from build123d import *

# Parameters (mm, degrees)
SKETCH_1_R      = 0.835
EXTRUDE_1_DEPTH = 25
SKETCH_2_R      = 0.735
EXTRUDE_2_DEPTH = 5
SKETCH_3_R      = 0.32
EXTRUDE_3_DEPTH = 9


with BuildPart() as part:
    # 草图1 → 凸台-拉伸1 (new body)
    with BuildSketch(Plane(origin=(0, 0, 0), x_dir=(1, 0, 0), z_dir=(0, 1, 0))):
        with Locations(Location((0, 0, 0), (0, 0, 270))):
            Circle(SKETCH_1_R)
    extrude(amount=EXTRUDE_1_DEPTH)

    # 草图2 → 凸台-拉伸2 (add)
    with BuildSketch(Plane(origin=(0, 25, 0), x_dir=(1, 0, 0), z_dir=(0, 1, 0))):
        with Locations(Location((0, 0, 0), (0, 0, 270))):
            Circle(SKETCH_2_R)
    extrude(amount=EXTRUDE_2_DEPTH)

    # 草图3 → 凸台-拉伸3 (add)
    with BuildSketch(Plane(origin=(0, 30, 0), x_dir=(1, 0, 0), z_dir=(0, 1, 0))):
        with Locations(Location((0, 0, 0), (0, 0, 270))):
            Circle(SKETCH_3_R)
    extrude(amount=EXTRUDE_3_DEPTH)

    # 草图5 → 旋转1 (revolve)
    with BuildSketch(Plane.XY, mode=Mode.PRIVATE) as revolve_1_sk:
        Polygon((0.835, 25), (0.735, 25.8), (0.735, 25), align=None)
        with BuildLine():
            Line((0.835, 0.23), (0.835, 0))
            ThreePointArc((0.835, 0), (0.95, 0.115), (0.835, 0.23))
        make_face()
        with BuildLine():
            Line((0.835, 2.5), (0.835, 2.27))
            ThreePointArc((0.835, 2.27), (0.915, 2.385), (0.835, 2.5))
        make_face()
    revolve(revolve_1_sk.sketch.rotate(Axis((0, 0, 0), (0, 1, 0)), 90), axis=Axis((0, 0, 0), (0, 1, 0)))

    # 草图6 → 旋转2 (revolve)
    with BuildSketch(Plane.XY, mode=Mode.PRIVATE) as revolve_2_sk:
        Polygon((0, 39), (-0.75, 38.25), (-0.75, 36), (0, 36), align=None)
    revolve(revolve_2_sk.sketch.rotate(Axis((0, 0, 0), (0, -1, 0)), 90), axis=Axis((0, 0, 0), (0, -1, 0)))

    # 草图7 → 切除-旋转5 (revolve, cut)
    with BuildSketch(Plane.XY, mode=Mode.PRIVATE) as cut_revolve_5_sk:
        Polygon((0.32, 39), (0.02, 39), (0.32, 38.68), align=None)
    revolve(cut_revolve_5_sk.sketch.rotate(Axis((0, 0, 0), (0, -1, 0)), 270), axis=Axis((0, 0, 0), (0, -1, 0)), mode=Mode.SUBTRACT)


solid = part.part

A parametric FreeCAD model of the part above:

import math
import FreeCAD as App
import Part
import Sketcher
Q = App.Units.Quantity


def add_polygon(sketch, points):
    """Adds a closed chain of lines whose ends are joined by coincident constraints."""
    first, n = sketch.GeometryCount, len(points)
    for a, b in zip(points, points[1:] + points[:1]):
        sketch.addGeometry(Part.LineSegment(App.Vector(*a, 0), App.Vector(*b, 0)), False)
    for i in range(n):
        sketch.addConstraint(Sketcher.Constraint("Coincident", first + i, 2, first + (i + 1) % n, 1))

doc = App.newDocument("Part")
body = doc.addObject("PartDesign::Body", "Body")

sketch1 = doc.addObject("Sketcher::SketchObject", "Sketch")
body.addObject(sketch1)
sketch1.AttachmentSupport = (doc.XZ_Plane, [""])
sketch1.MapMode = "FlatFace"
sketch1.addGeometry(Part.Circle(App.Vector(0, 0, 0), App.Vector(0, 0, 1), 0.8), False)
sketch1.addConstraint(Sketcher.Constraint("Coincident", 0, 3, -1, 1))
sketch1.addConstraint(Sketcher.Constraint("Diameter", 0, Q("1.67 mm")))
pad1 = doc.addObject("PartDesign::Pad", "Pad")
body.addObject(pad1)
pad1.Profile = sketch1
pad1.Length = 25
pad1.Reversed = True

sketch2 = doc.addObject("Sketcher::SketchObject", "Sketch001")
body.addObject(sketch2)
sketch2.AttachmentSupport = (doc.XZ_Plane, [""])
sketch2.MapMode = "FlatFace"
sketch2.AttachmentOffset = App.Placement(App.Vector(0, 0, -25), App.Rotation())
sketch2.addGeometry(Part.Circle(App.Vector(0, 0, 0), App.Vector(0, 0, 1), 0.7), False)
sketch2.addConstraint(Sketcher.Constraint("Coincident", 0, 3, -1, 1))
sketch2.addConstraint(Sketcher.Constraint("Diameter", 0, Q("1.47 mm")))
pad2 = doc.addObject("PartDesign::Pad", "Pad001")
body.addObject(pad2)
pad2.Profile = sketch2
pad2.Length = 5
pad2.Reversed = True

sketch3 = doc.addObject("Sketcher::SketchObject", "Sketch002")
body.addObject(sketch3)
sketch3.AttachmentSupport = (doc.XZ_Plane, [""])
sketch3.MapMode = "FlatFace"
sketch3.AttachmentOffset = App.Placement(App.Vector(0, 0, -30), App.Rotation())
sketch3.addGeometry(Part.Circle(App.Vector(0, 0, 0), App.Vector(0, 0, 1), 0.32), False)
sketch3.addConstraint(Sketcher.Constraint("Coincident", 0, 3, -1, 1))
sketch3.addConstraint(Sketcher.Constraint("Diameter", 0, Q("0.64 mm")))
pad3 = doc.addObject("PartDesign::Pad", "Pad002")
body.addObject(pad3)
pad3.Profile = sketch3
pad3.Length = 9
pad3.Reversed = True

sketch4 = doc.addObject("Sketcher::SketchObject", "Sketch003")
body.addObject(sketch4)
sketch4.AttachmentSupport = (doc.XY_Plane, [""])
sketch4.MapMode = "FlatFace"
add_polygon(sketch4, [(0.83, 25), (0.73, 25.8), (0.73, 25)])
sketch4.addGeometry(Part.LineSegment(App.Vector(0.83, 0.23, 0), App.Vector(0.83, 0, 0)), False)
sketch4.addGeometry(Part.ArcOfCircle(Part.Circle(App.Vector(0.83, 0.12, 0), App.Vector(0, 0, 1), 0.12), math.radians(-90), math.radians(90)), False)
sketch4.addGeometry(Part.LineSegment(App.Vector(0.83, 2.5, 0), App.Vector(0.83, 2.27, 0)), False)
sketch4.addGeometry(Part.ArcOfCircle(Part.Circle(App.Vector(0.79, 2.38, 0), App.Vector(0, 0, 1), 0.12), math.radians(-70), math.radians(70)), False)
sketch4.addConstraint(Sketcher.Constraint("Coincident", 3, 1, 4, 2))
sketch4.addConstraint(Sketcher.Constraint("Coincident", 4, 1, 3, 2))
sketch4.addConstraint(Sketcher.Constraint("Coincident", 5, 1, 6, 2))
sketch4.addConstraint(Sketcher.Constraint("Coincident", 6, 1, 5, 2))
sketch4.addConstraint(Sketcher.Constraint("Vertical", 1))
sketch4.addConstraint(Sketcher.Constraint("Horizontal", 2))
sketch4.addConstraint(Sketcher.Constraint("Vertical", 3))
sketch4.addConstraint(Sketcher.Constraint("Vertical", 5))
sketch4.addConstraint(Sketcher.Constraint("PointOnObject", 4, 1, -1))
sketch4.addConstraint(Sketcher.Constraint("Vertical", 4, 3, 2, 2))
sketch4.addConstraint(Sketcher.Constraint("Vertical", 2, 2, 3, 1))
sketch4.addConstraint(Sketcher.Constraint("Vertical", 4, 1, 5, 1))
sketch4.addConstraint(Sketcher.Constraint("Equal", 3, 5))
sketch4.addConstraint(Sketcher.Constraint("DistanceX", 2, 1, 2, 2, Q("0.1 mm")))
sketch4.addConstraint(Sketcher.Constraint("DistanceY", 1, 2, 1, 1, Q("0.8 mm")))
sketch4.addConstraint(Sketcher.Constraint("DistanceY", -1, 1, 1, 2, Q("25 mm")))
sketch4.addConstraint(Sketcher.Constraint("Radius", 4, Q("0.115 mm")))
sketch4.addConstraint(Sketcher.Constraint("DistanceY", -1, 1, 5, 1, Q("2.5 mm")))
sketch4.addConstraint(Sketcher.Constraint("DistanceX", -1, 1, 4, 3, Q("0.835 mm")))
sketch4.addConstraint(Sketcher.Constraint("Radius", 6, Q("0.122656 mm")))
revolution = doc.addObject("PartDesign::Revolution", "Revolution")
body.addObject(revolution)
revolution.Profile = sketch4
revolution.ReferenceAxis = (sketch4, ["V_Axis"])
revolution.Angle = 360

sketch5 = doc.addObject("Sketcher::SketchObject", "Sketch004")
body.addObject(sketch5)
sketch5.AttachmentSupport = (doc.XY_Plane, [""])
sketch5.MapMode = "FlatFace"
add_polygon(sketch5, [(0, 39), (-0.8, 38.2), (-0.8, 36), (0, 36)])
sketch5.addConstraint(Sketcher.Constraint("Vertical", 1))
sketch5.addConstraint(Sketcher.Constraint("Horizontal", 2))
sketch5.addConstraint(Sketcher.Constraint("Vertical", 3))
sketch5.addConstraint(Sketcher.Constraint("PointOnObject", 2, 2, -2))
sketch5.addConstraint(Sketcher.Constraint("DistanceY", 3, 1, 3, 2, Q("3 mm")))
sketch5.addConstraint(Sketcher.Constraint("Angle", 0, Q("-135 deg")))
sketch5.addConstraint(Sketcher.Constraint("DistanceY", -1, 1, 1, 2, Q("36 mm")))
sketch5.addConstraint(Sketcher.Constraint("DistanceX", 2, 1, 2, 2, Q("0.75 mm")))
revolution2 = doc.addObject("PartDesign::Revolution", "Revolution001")
body.addObject(revolution2)
revolution2.Profile = sketch5
revolution2.ReferenceAxis = (sketch5, ["V_Axis"])
revolution2.Angle = 360

sketch6 = doc.addObject("Sketcher::SketchObject", "Sketch005")
body.addObject(sketch6)
sketch6.AttachmentSupport = (doc.XY_Plane, [""])
sketch6.MapMode = "FlatFace"
add_polygon(sketch6, [(0.32, 39), (0.02, 39), (0.32, 38.68)])
sketch6.addConstraint(Sketcher.Constraint("Horizontal", 0))
sketch6.addConstraint(Sketcher.Constraint("Vertical", 2))
sketch6.addConstraint(Sketcher.Constraint("DistanceX", 0, 2, 0, 1, Q("0.3 mm")))
sketch6.addConstraint(Sketcher.Constraint("DistanceY", -1, 1, 0, 2, Q("39 mm")))
sketch6.addConstraint(Sketcher.Constraint("DistanceY", 2, 1, 2, 2, Q("0.32 mm")))
sketch6.addConstraint(Sketcher.Constraint("DistanceX", -1, 1, 0, 2, Q("0.02 mm")))
groove = doc.addObject("PartDesign::Groove", "Groove")
body.addObject(groove)
groove.Profile = sketch6
groove.ReferenceAxis = (sketch6, ["V_Axis"])
groove.Angle = 360

doc.recompute()
